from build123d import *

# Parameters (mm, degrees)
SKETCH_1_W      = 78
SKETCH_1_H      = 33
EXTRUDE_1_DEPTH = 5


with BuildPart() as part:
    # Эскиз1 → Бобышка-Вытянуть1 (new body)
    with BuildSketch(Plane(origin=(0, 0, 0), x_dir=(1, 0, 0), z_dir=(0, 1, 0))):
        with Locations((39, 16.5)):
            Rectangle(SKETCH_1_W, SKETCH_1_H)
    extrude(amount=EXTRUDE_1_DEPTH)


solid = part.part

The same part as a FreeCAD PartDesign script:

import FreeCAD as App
import Part
import Sketcher
from FreeCAD import Vector


def add_polygon(sketch, points):
    """Adds a closed chain of lines whose ends are joined by coincident constraints."""
    first, n = sketch.GeometryCount, len(points)
    for a, b in zip(points, points[1:] + points[:1]):
        sketch.addGeometry(Part.LineSegment(App.Vector(*a, 0), App.Vector(*b, 0)), False)
    for i in range(n):
        sketch.addConstraint(Sketcher.Constraint("Coincident", first + i, 2, first + (i + 1) % n, 1))

doc = App.newDocument("Part")
params = doc.addObject("Spreadsheet::Sheet", "Params")
for row, (alias, value) in enumerate([
    ("sketch1_width", "78 mm"),
    ("sketch1_height", "33 mm"),
    ("pad1_length", "5 mm"),
], start=1):
    params.set(f"A{row}", alias)
    params.set(f"B{row}", "=" + value)
    params.setAlias(f"B{row}", alias)

body = doc.addObject("PartDesign::Body", "Body")

sketch1 = doc.addObject("Sketcher::SketchObject", "Sketch")
body.addObject(sketch1)
sketch1.AttachmentSupport = (doc.XZ_Plane, [""])
sketch1.MapMode = "FlatFace"
add_polygon(sketch1, [(0, -33), (0, 0), (78, 0), (78, -33)])
sketch1.addConstraint(Sketcher.Constraint("Vertical", 0))
sketch1.addConstraint(Sketcher.Constraint("Horizontal", 1))
sketch1.addConstraint(Sketcher.Constraint("Vertical", 2))
sketch1.addConstraint(Sketcher.Constraint("Horizontal", 3))
sketch1.addConstraint(Sketcher.Constraint("Coincident", 0, 2, -1, 1))
sketch1.addConstraint(Sketcher.Constraint("DistanceX", 1, 1, 1, 2, 78.0))
sketch1.addConstraint(Sketcher.Constraint("DistanceY", 0, 1, 0, 2, 33.0))
sketch1.setExpression("Constraints[9]", "Params.sketch1_width")
sketch1.setExpression("Constraints[10]", "Params.sketch1_height")
pad1 = doc.addObject("PartDesign::Pad", "Pad")
body.addObject(pad1)
pad1.Profile = sketch1
pad1.setExpression("Length", "Params.pad1_length")
pad1.Reversed = True

doc.recompute()
